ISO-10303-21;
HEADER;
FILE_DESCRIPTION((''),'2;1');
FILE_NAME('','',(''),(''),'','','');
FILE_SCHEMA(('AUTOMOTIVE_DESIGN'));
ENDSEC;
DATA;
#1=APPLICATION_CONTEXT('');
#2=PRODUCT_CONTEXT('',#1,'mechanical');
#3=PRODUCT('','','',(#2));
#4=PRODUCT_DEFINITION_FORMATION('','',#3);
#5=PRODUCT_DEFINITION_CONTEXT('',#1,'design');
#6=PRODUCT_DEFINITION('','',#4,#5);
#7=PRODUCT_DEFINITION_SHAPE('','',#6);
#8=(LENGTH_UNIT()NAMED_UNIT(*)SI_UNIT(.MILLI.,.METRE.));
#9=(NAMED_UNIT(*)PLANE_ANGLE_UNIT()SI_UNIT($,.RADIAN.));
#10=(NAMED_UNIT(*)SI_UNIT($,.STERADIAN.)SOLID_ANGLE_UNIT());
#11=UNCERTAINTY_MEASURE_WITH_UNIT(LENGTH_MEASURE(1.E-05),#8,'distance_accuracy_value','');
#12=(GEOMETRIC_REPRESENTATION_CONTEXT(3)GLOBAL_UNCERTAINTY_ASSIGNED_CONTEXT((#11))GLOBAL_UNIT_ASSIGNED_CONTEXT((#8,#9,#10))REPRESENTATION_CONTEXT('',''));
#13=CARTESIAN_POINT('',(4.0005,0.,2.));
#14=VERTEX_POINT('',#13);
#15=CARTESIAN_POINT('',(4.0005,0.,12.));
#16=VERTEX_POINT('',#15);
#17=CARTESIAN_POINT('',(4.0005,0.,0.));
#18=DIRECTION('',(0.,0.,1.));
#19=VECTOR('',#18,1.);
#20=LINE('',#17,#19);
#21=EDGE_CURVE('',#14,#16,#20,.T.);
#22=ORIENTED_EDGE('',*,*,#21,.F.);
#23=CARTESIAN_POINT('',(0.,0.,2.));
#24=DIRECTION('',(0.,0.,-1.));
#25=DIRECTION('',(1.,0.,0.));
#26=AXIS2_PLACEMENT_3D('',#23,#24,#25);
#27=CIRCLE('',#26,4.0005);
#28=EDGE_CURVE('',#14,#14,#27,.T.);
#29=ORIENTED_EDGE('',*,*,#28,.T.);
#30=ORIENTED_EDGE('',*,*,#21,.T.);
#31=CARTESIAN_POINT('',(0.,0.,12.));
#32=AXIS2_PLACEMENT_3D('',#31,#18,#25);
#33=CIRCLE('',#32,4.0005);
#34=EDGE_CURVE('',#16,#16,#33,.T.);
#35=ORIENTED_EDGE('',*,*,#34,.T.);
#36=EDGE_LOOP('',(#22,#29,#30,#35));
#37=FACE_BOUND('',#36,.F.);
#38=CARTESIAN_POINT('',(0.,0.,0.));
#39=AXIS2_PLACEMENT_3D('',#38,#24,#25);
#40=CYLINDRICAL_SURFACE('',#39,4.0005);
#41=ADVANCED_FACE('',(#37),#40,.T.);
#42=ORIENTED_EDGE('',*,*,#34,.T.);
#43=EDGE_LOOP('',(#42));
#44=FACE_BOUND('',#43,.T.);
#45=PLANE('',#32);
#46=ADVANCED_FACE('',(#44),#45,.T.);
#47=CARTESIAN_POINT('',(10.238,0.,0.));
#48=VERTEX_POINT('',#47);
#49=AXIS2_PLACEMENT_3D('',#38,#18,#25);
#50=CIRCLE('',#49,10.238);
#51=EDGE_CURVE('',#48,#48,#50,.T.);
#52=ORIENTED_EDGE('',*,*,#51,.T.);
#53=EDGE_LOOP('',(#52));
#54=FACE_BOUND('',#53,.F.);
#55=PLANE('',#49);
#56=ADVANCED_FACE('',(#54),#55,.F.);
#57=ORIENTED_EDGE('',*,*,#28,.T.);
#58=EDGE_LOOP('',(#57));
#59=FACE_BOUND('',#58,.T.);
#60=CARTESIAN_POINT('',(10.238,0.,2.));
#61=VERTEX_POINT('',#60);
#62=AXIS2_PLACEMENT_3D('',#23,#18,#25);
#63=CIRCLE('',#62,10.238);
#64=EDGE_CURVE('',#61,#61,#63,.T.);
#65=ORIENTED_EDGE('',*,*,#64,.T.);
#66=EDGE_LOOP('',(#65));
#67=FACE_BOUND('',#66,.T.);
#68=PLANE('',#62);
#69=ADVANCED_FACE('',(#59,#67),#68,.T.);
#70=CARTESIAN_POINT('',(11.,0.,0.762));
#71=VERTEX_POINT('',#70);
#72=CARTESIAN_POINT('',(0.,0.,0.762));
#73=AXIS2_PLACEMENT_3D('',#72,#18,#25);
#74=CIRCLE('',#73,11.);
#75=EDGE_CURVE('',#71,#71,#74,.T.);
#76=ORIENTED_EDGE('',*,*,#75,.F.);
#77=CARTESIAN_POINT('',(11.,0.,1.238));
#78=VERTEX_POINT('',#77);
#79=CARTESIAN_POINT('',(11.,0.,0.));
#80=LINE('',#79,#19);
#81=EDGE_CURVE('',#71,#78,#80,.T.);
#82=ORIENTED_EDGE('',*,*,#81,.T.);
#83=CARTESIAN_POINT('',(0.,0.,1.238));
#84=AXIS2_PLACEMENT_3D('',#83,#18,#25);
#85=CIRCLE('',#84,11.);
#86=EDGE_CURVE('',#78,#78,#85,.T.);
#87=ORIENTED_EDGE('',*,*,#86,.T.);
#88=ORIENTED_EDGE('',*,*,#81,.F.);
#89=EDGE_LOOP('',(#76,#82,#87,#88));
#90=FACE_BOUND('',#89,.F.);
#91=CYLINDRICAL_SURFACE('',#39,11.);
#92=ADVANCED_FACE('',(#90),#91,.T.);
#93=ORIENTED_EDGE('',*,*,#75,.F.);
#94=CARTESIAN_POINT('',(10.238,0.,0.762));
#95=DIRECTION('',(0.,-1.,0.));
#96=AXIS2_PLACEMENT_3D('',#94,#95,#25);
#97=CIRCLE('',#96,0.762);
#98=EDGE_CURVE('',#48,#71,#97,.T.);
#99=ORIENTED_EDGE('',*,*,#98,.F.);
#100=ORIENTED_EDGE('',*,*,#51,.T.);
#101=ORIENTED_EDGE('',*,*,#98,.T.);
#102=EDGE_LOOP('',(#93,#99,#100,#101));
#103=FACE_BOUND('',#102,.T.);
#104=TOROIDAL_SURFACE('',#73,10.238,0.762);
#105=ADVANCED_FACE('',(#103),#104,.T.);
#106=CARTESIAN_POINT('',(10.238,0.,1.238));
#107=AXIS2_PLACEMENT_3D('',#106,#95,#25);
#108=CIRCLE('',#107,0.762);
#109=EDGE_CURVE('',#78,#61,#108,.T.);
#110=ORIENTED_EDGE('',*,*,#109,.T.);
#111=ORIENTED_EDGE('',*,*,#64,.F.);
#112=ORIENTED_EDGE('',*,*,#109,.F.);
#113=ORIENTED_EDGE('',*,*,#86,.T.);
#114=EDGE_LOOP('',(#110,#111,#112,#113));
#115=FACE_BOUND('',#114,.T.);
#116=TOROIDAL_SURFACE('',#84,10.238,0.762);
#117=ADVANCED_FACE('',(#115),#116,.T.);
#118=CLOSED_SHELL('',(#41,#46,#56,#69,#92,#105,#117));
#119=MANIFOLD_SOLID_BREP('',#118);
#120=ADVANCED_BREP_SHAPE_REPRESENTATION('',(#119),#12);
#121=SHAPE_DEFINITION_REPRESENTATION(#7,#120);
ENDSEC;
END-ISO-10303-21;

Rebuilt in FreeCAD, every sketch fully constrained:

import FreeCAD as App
import Part
import Sketcher

V = App.Vector
Q = App.Units.Quantity


def edges_at(feature, points):
    """Names of the edges that pass closest to the given points."""
    edges = feature.Shape.Edges
    near = lambda p: min(range(len(edges)), key=lambda i: edges[i].distToShape(Part.Vertex(*p))[0])
    return sorted({f"Edge{near(p) + 1}" for p in points})

doc = App.newDocument("Part")
params = doc.addObject("Spreadsheet::Sheet", "Params")
for row, (alias, value) in enumerate([
    ("sketch1_diameter", "22 mm"),
    ("pad1_length", "2 mm"),
    ("pad2_length", "12 mm"),
    ("fillet_radius", "0.762 mm"),
], start=1):
    params.set(f"A{row}", alias)
    params.set(f"B{row}", "=" + value)
    params.setAlias(f"B{row}", alias)

body = doc.addObject("PartDesign::Body", "Body")

sketch1 = doc.addObject("Sketcher::SketchObject", "Sketch")
body.addObject(sketch1)
sketch1.AttachmentSupport = (doc.XY_Plane, [""])
sketch1.MapMode = "FlatFace"
sketch1.addGeometry(Part.Circle(V(0, 0, 0), V(0, 0, 1), 11), False)
sketch1.addConstraint([
    Sketcher.Constraint("Coincident", 0, 3, -1, 1),
    Sketcher.Constraint("Diameter", 0, Q("22 mm")),
])
sketch1.setExpression("Constraints[1]", "Params.sketch1_diameter")
pad1 = doc.addObject("PartDesign::Pad", "Pad")
body.addObject(pad1)
pad1.Profile = sketch1
pad1.setExpression("Length", "Params.pad1_length")

sketch2 = doc.addObject("Sketcher::SketchObject", "Sketch001")
body.addObject(sketch2)
sketch2.AttachmentSupport = (doc.XY_Plane, [""])
sketch2.MapMode = "FlatFace"
sketch2.addGeometry(Part.Circle(V(0, 0, 0), V(0, 0, 1), 4), False)
sketch2.addConstraint([
    Sketcher.Constraint("Coincident", 0, 3, -1, 1),
    Sketcher.Constraint("Diameter", 0, Q("8.001 mm")),
])
pad2 = doc.addObject("PartDesign::Pad", "Pad001")
body.addObject(pad2)
pad2.Profile = sketch2
pad2.setExpression("Length", "Params.pad2_length")
doc.recompute()

fillet = doc.addObject("PartDesign::Fillet", "Fillet")
body.addObject(fillet)
fillet.Base = (pad2, edges_at(pad2, [(-11, 0, 2), (11, 0, 1), (-11, 0, 0)]))
fillet.setExpression("Radius", "Params.fillet_radius")

doc.recompute()
